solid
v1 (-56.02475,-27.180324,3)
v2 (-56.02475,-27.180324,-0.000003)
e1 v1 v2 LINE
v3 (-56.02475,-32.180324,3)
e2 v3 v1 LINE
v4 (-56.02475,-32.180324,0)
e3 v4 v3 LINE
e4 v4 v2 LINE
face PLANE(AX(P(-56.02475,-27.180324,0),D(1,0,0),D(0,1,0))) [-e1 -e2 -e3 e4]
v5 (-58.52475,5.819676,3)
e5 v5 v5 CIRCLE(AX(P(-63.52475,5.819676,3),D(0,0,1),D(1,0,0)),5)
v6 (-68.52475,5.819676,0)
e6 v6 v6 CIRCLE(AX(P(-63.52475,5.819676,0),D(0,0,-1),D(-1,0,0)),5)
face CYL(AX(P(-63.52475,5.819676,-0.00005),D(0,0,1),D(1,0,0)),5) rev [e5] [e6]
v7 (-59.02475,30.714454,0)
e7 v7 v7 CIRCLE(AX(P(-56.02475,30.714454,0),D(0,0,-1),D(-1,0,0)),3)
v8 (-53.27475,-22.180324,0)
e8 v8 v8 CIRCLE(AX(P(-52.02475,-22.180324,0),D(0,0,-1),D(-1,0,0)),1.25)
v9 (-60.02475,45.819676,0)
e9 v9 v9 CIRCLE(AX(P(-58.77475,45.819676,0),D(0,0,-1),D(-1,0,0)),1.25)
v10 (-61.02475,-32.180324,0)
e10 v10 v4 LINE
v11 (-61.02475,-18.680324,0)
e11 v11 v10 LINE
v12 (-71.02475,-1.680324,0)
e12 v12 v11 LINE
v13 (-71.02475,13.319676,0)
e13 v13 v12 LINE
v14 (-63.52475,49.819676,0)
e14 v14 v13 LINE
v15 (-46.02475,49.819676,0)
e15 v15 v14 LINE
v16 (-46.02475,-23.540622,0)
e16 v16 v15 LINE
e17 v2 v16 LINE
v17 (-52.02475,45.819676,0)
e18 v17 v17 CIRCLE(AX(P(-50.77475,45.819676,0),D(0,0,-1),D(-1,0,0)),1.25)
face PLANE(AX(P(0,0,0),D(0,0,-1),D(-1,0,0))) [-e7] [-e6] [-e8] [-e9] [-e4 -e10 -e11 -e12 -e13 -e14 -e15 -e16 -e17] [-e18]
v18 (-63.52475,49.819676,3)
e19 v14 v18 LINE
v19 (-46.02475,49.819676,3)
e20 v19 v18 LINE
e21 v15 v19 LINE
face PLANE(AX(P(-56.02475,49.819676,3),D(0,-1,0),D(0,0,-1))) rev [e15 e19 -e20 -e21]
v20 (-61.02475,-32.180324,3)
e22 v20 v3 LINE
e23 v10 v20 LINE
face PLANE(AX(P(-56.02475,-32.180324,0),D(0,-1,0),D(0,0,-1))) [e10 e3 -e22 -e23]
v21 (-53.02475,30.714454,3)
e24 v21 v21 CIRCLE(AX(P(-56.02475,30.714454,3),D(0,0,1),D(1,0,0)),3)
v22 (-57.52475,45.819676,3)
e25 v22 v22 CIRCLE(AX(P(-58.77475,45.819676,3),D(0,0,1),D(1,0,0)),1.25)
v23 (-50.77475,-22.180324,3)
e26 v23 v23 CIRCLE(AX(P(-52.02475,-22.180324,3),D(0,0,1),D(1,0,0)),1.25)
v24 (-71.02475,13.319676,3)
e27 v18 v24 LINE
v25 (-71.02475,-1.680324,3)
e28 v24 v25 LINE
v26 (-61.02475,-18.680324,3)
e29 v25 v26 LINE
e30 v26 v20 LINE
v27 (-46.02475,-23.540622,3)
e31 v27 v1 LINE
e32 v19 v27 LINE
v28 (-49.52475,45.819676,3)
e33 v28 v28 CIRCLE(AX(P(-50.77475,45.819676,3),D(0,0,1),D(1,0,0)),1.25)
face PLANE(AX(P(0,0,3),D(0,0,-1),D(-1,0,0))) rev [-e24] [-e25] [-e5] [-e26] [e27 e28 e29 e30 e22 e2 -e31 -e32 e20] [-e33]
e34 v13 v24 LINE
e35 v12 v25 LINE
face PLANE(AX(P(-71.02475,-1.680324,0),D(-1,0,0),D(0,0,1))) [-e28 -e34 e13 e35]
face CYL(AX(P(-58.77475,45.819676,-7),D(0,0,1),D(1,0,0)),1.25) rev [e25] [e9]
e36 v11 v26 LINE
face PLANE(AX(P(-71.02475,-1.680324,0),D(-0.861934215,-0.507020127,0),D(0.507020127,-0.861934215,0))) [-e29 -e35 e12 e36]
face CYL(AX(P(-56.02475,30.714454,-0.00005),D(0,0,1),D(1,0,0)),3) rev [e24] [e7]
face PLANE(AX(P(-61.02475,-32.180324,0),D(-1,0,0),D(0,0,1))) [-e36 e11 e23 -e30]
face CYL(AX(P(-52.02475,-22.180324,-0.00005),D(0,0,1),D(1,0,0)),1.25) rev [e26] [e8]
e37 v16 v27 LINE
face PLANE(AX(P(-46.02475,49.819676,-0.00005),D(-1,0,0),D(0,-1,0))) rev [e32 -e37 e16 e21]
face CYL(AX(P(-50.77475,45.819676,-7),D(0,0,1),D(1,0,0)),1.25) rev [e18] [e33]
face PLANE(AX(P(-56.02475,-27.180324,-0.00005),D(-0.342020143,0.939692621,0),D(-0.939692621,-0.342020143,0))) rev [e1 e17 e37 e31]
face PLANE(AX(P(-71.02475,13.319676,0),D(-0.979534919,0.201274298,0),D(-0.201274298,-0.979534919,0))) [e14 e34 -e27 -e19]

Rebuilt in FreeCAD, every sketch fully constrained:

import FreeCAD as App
import Part
import Sketcher
from FreeCAD import Vector
Q = App.Units.Quantity

doc = App.newDocument("Part")
body = doc.addObject("PartDesign::Body", "Body")

sketch1 = body.newObject("Sketcher::SketchObject", "Sketch")
sketch1.AttachmentSupport = (doc.getObject("XY_Plane"), [""])
sketch1.MapMode = "FlatFace"
sketch1.addGeometry(Part.LineSegment(Vector(-56, 50, 0), Vector(-56, -27, 0)), False)
sketch1.addGeometry(Part.LineSegment(Vector(-56, -27, 0), Vector(-36, -27, 0)), False)
sketch1.addGeometry(Part.LineSegment(Vector(-36, -27, 0), Vector(-36, 50, 0)), False)
sketch1.addGeometry(Part.LineSegment(Vector(-36, 50, 0), Vector(-56, 50, 0)), False)
sketch1.addConstraint(Sketcher.Constraint("Coincident", 0, 2, 1, 1))
sketch1.addConstraint(Sketcher.Constraint("Coincident", 1, 2, 2, 1))
sketch1.addConstraint(Sketcher.Constraint("Coincident", 2, 2, 3, 1))
sketch1.addConstraint(Sketcher.Constraint("Coincident", 3, 2, 0, 1))
sketch1.addConstraint(Sketcher.Constraint("Vertical", 0))
sketch1.addConstraint(Sketcher.Constraint("Horizontal", 1))
sketch1.addConstraint(Sketcher.Constraint("Vertical", 2))
sketch1.addConstraint(Sketcher.Constraint("Horizontal", 3))
sketch1.addConstraint(Sketcher.Constraint("DistanceX", 1, 1, 1, 2, Q("20 mm")))
sketch1.addConstraint(Sketcher.Constraint("DistanceY", 0, 2, 0, 1, Q("77 mm")))
sketch1.addConstraint(Sketcher.Constraint("DistanceX", 0, 2, -1, 1, Q("56.02475 mm")))
sketch1.addConstraint(Sketcher.Constraint("DistanceY", 0, 2, -1, 1, Q("27.180324 mm")))
pad1 = body.newObject("PartDesign::Pad", "Pad")
pad1.Profile = sketch1
pad1.Length = 3

sketch2 = body.newObject("Sketcher::SketchObject", "Sketch001")
sketch2.AttachmentSupport = (doc.getObject("XY_Plane"), [""])
sketch2.MapMode = "FlatFace"
sketch2.AttachmentOffset = App.Placement(Vector(0, 0, 3), App.Rotation())
sketch2.addGeometry(Part.LineSegment(Vector(-71, 13, 0), Vector(-71, -2, 0)), False)
sketch2.addGeometry(Part.LineSegment(Vector(-71, -2, 0), Vector(-56, -2, 0)), False)
sketch2.addGeometry(Part.LineSegment(Vector(-56, -2, 0), Vector(-56, 13, 0)), False)
sketch2.addGeometry(Part.LineSegment(Vector(-56, 13, 0), Vector(-71, 13, 0)), False)
sketch2.addConstraint(Sketcher.Constraint("Coincident", 0, 2, 1, 1))
sketch2.addConstraint(Sketcher.Constraint("Coincident", 1, 2, 2, 1))
sketch2.addConstraint(Sketcher.Constraint("Coincident", 2, 2, 3, 1))
sketch2.addConstraint(Sketcher.Constraint("Coincident", 3, 2, 0, 1))
sketch2.addConstraint(Sketcher.Constraint("Vertical", 0))
sketch2.addConstraint(Sketcher.Constraint("Horizontal", 1))
sketch2.addConstraint(Sketcher.Constraint("Vertical", 2))
sketch2.addConstraint(Sketcher.Constraint("Horizontal", 3))
sketch2.addConstraint(Sketcher.Constraint("Equal", 3, 0))
sketch2.addConstraint(Sketcher.Constraint("DistanceX", 1, 1, 1, 2, Q("15 mm")))
sketch2.addConstraint(Sketcher.Constraint("DistanceX", 0, 2, -1, 1, Q("71.02475 mm")))
sketch2.addConstraint(Sketcher.Constraint("DistanceY", 0, 2, -1, 1, Q("1.680324 mm")))
pad2 = body.newObject("PartDesign::Pad", "Pad001")
pad2.Profile = sketch2
pad2.Length = 3
pad2.Reversed = True

sketch3 = body.newObject("Sketcher::SketchObject", "Sketch002")
sketch3.AttachmentSupport = (doc.getObject("XY_Plane"), [""])
sketch3.MapMode = "FlatFace"
sketch3.AttachmentOffset = App.Placement(Vector(0, 0, 3), App.Rotation())
sketch3.addGeometry(Part.LineSegment(Vector(-64, 50, 0), Vector(-71, 13, 0)), False)
sketch3.addGeometry(Part.LineSegment(Vector(-71, 13, 0), Vector(-56, 13, 0)), False)
sketch3.addGeometry(Part.LineSegment(Vector(-56, 13, 0), Vector(-56, 50, 0)), False)
sketch3.addGeometry(Part.LineSegment(Vector(-56, 50, 0), Vector(-64, 50, 0)), False)
sketch3.addGeometry(Part.LineSegment(Vector(-71, -2, 0), Vector(-56, -27, 0)), False)
sketch3.addGeometry(Part.LineSegment(Vector(-56, -27, 0), Vector(-56, -2, 0)), False)
sketch3.addGeometry(Part.LineSegment(Vector(-56, -2, 0), Vector(-71, -2, 0)), False)
sketch3.addConstraint(Sketcher.Constraint("Coincident", 0, 2, 1, 1))
sketch3.addConstraint(Sketcher.Constraint("Coincident", 1, 2, 2, 1))
sketch3.addConstraint(Sketcher.Constraint("Coincident", 2, 2, 3, 1))
sketch3.addConstraint(Sketcher.Constraint("Coincident", 3, 2, 0, 1))
sketch3.addConstraint(Sketcher.Constraint("Coincident", 4, 2, 5, 1))
sketch3.addConstraint(Sketcher.Constraint("Coincident", 5, 2, 6, 1))
sketch3.addConstraint(Sketcher.Constraint("Coincident", 6, 2, 4, 1))
sketch3.addConstraint(Sketcher.Constraint("Horizontal", 1))
sketch3.addConstraint(Sketcher.Constraint("Vertical", 2))
sketch3.addConstraint(Sketcher.Constraint("Horizontal", 3))
sketch3.addConstraint(Sketcher.Constraint("Vertical", 5))
sketch3.addConstraint(Sketcher.Constraint("Horizontal", 6))
sketch3.addConstraint(Sketcher.Constraint("Vertical", 2, 2, 4, 2))
sketch3.addConstraint(Sketcher.Constraint("Vertical", 0, 2, 6, 2))
sketch3.addConstraint(Sketcher.Constraint("DistanceX", 1, 1, 1, 2, Q("15 mm")))
sketch3.addConstraint(Sketcher.Constraint("DistanceX", 3, 2, 3, 1, Q("7.5 mm")))
sketch3.addConstraint(Sketcher.Constraint("DistanceY", 2, 1, 2, 2, Q("36.5 mm")))
sketch3.addConstraint(Sketcher.Constraint("DistanceY", 5, 1, 5, 2, Q("25.5 mm")))
sketch3.addConstraint(Sketcher.Constraint("DistanceY", 4, 2, 2, 2, Q("77 mm")))
sketch3.addConstraint(Sketcher.Constraint("DistanceX", 0, 2, -1, 1, Q("71.02475 mm")))
sketch3.addConstraint(Sketcher.Constraint("DistanceY", -1, 1, 0, 2, Q("13.319676 mm")))
pad3 = body.newObject("PartDesign::Pad", "Pad002")
pad3.Profile = sketch3
pad3.Length = 3
pad3.Reversed = True

sketch4 = body.newObject("Sketcher::SketchObject", "Sketch003")
sketch4.AttachmentSupport = (doc.getObject("XY_Plane"), [""])
sketch4.MapMode = "FlatFace"
sketch4.AttachmentOffset = App.Placement(Vector(0, 0, 3), App.Rotation())
sketch4.addGeometry(Part.LineSegment(Vector(-56, -32.2, 0), Vector(-56, -27.2, 0)), False)
sketch4.addGeometry(Part.LineSegment(Vector(-56, -27.2, 0), Vector(-61, -18.7, 0)), False)
sketch4.addGeometry(Part.LineSegment(Vector(-61, -18.7, 0), Vector(-61, -32.2, 0)), False)
sketch4.addGeometry(Part.LineSegment(Vector(-61, -32.2, 0), Vector(-56, -32.2, 0)), False)
sketch4.addConstraint(Sketcher.Constraint("Coincident", 0, 2, 1, 1))
sketch4.addConstraint(Sketcher.Constraint("Coincident", 1, 2, 2, 1))
sketch4.addConstraint(Sketcher.Constraint("Coincident", 2, 2, 3, 1))
sketch4.addConstraint(Sketcher.Constraint("Coincident", 3, 2, 0, 1))
sketch4.addConstraint(Sketcher.Constraint("Vertical", 0))
sketch4.addConstraint(Sketcher.Constraint("Vertical", 2))
sketch4.addConstraint(Sketcher.Constraint("Horizontal", 3))
sketch4.addConstraint(Sketcher.Constraint("Equal", 3, 0))
sketch4.addConstraint(Sketcher.Constraint("DistanceX", 3, 1, 3, 2, Q("5 mm")))
sketch4.addConstraint(Sketcher.Constraint("DistanceY", 2, 2, 2, 1, Q("13.5 mm")))
sketch4.addConstraint(Sketcher.Constraint("DistanceX", 0, 2, -1, 1, Q("56.02475 mm")))
sketch4.addConstraint(Sketcher.Constraint("DistanceY", 0, 2, -1, 1, Q("27.180324 mm")))
pad4 = body.newObject("PartDesign::Pad", "Pad003")
pad4.Profile = sketch4
pad4.Length = 3
pad4.Reversed = True

sketch5 = body.newObject("Sketcher::SketchObject", "Sketch004")
sketch5.AttachmentSupport = (doc.getObject("XY_Plane"), [""])
sketch5.MapMode = "FlatFace"
sketch5.AttachmentOffset = App.Placement(Vector(0, 0, 3), App.Rotation())
sketch5.addGeometry(Part.Circle(Vector(-63.5, 5.8, 0), Vector(0, 0, 1), 5), False)
sketch5.addGeometry(Part.Circle(Vector(-56, 30.7, 0), Vector(0, 0, 1), 3), False)
sketch5.addGeometry(Part.Circle(Vector(-52, -22.2, 0), Vector(0, 0, 1), 1.2), False)
sketch5.addGeometry(Part.LineSegment(Vector(-46, -23.5, 0), Vector(-56, -27.2, 0)), False)
sketch5.addGeometry(Part.LineSegment(Vector(-56, -27.2, 0), Vector(-36, -27.2, 0)), False)
sketch5.addGeometry(Part.LineSegment(Vector(-36, -27.2, 0), Vector(-36, 49.8, 0)), False)
sketch5.addGeometry(Part.LineSegment(Vector(-36, 49.8, 0), Vector(-46, 49.8, 0)), False)
sketch5.addGeometry(Part.LineSegment(Vector(-46, 49.8, 0), Vector(-46, -23.5, 0)), False)
sketch5.addConstraint(Sketcher.Constraint("Coincident", 3, 2, 4, 1))
sketch5.addConstraint(Sketcher.Constraint("Coincident", 4, 2, 5, 1))
sketch5.addConstraint(Sketcher.Constraint("Coincident", 5, 2, 6, 1))
sketch5.addConstraint(Sketcher.Constraint("Coincident", 6, 2, 7, 1))
sketch5.addConstraint(Sketcher.Constraint("Coincident", 7, 2, 3, 1))
sketch5.addConstraint(Sketcher.Constraint("Horizontal", 4))
sketch5.addConstraint(Sketcher.Constraint("Vertical", 5))
sketch5.addConstraint(Sketcher.Constraint("Horizontal", 6))
sketch5.addConstraint(Sketcher.Constraint("Vertical", 7))
sketch5.addConstraint(Sketcher.Constraint("Vertical", 1, 3, 3, 2))
sketch5.addConstraint(Sketcher.Constraint("Diameter", 0, Q("10 mm")))
sketch5.addConstraint(Sketcher.Constraint("Diameter", 1, Q("6 mm")))
sketch5.addConstraint(Sketcher.Constraint("Diameter", 2, Q("2.5 mm")))
sketch5.addConstraint(Sketcher.Constraint("DistanceX", 4, 1, 4, 2, Q("20 mm")))
sketch5.addConstraint(Sketcher.Constraint("DistanceX", 6, 2, 6, 1, Q("10 mm")))
sketch5.addConstraint(Sketcher.Constraint("DistanceY", 5, 1, 5, 2, Q("77 mm")))
sketch5.addConstraint(Sketcher.Constraint("Angle", 3, Q("-160 deg")))
sketch5.addConstraint(Sketcher.Constraint("DistanceY", 2, 3, 0, 3, Q("28 mm")))
sketch5.addConstraint(Sketcher.Constraint("DistanceX", 1, 3, 2, 3, Q("4 mm")))
sketch5.addConstraint(Sketcher.Constraint("DistanceY", 3, 2, 2, 3, Q("5 mm")))
sketch5.addConstraint(Sketcher.Constraint("DistanceX", 0, 3, 1, 3, Q("7.5 mm")))
sketch5.addConstraint(Sketcher.Constraint("DistanceX", 0, 3, -1, 1, Q("63.52475 mm")))
sketch5.addConstraint(Sketcher.Constraint("DistanceY", 0, 3, 1, 3, Q("24.894779 mm")))
sketch5.addConstraint(Sketcher.Constraint("DistanceY", -1, 1, 0, 3, Q("5.819676 mm")))
pocket1 = body.newObject("PartDesign::Pocket", "Pocket")
pocket1.Profile = sketch5
pocket1.Type = "ThroughAll"

sketch6 = body.newObject("Sketcher::SketchObject", "Sketch005")
sketch6.AttachmentSupport = (doc.getObject("XY_Plane"), [""])
sketch6.MapMode = "FlatFace"
sketch6.AttachmentOffset = App.Placement(Vector(0, 0, 3), App.Rotation())
sketch6.addGeometry(Part.Circle(Vector(-58.8, 45.8, 0), Vector(0, 0, 1), 1.2), False)
sketch6.addGeometry(Part.Circle(Vector(-50.8, 45.8, 0), Vector(0, 0, 1), 1.2), False)
sketch6.addConstraint(Sketcher.Constraint("Equal", 0, 1))
sketch6.addConstraint(Sketcher.Constraint("Horizontal", 0, 3, 1, 3))
sketch6.addConstraint(Sketcher.Constraint("Diameter", 0, Q("2.5 mm")))
sketch6.addConstraint(Sketcher.Constraint("DistanceX", 0, 3, 1, 3, Q("8 mm")))
sketch6.addConstraint(Sketcher.Constraint("DistanceX", 0, 3, -1, 1, Q("58.77475 mm")))
sketch6.addConstraint(Sketcher.Constraint("DistanceY", -1, 1, 0, 3, Q("45.819676 mm")))
pocket2 = body.newObject("PartDesign::Pocket", "Pocket001")
pocket2.Profile = sketch6
pocket2.Length = 10

doc.recompute()
